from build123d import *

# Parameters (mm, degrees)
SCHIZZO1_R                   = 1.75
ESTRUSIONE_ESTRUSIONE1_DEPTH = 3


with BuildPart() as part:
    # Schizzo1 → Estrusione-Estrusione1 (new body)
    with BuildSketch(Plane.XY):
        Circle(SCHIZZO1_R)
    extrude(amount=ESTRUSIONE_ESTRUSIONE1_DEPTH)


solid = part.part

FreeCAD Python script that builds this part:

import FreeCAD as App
import Part
import Sketcher
Q = App.Units.Quantity

doc = App.newDocument("Part")
body = doc.addObject("PartDesign::Body", "Body")

# Sketch on XY plane
sketch1 = body.newObject("Sketcher::SketchObject", "Sketch")
sketch1.AttachmentSupport = (doc.getObject("XY_Plane"), [""])
sketch1.MapMode = "FlatFace"
sketch1.addGeometry(Part.Circle(App.Vector(0, 0, 0), App.Vector(0, 0, 1), 1.75), False)
sketch1.addConstraint([
    Sketcher.Constraint("Coincident", 0, 3, -1, 1),
    Sketcher.Constraint("Diameter", 0, Q("3.5 mm")),
])
pad1 = body.newObject("PartDesign::Pad", "Pad")
pad1.Profile = sketch1
pad1.Length = 3

doc.recompute()
